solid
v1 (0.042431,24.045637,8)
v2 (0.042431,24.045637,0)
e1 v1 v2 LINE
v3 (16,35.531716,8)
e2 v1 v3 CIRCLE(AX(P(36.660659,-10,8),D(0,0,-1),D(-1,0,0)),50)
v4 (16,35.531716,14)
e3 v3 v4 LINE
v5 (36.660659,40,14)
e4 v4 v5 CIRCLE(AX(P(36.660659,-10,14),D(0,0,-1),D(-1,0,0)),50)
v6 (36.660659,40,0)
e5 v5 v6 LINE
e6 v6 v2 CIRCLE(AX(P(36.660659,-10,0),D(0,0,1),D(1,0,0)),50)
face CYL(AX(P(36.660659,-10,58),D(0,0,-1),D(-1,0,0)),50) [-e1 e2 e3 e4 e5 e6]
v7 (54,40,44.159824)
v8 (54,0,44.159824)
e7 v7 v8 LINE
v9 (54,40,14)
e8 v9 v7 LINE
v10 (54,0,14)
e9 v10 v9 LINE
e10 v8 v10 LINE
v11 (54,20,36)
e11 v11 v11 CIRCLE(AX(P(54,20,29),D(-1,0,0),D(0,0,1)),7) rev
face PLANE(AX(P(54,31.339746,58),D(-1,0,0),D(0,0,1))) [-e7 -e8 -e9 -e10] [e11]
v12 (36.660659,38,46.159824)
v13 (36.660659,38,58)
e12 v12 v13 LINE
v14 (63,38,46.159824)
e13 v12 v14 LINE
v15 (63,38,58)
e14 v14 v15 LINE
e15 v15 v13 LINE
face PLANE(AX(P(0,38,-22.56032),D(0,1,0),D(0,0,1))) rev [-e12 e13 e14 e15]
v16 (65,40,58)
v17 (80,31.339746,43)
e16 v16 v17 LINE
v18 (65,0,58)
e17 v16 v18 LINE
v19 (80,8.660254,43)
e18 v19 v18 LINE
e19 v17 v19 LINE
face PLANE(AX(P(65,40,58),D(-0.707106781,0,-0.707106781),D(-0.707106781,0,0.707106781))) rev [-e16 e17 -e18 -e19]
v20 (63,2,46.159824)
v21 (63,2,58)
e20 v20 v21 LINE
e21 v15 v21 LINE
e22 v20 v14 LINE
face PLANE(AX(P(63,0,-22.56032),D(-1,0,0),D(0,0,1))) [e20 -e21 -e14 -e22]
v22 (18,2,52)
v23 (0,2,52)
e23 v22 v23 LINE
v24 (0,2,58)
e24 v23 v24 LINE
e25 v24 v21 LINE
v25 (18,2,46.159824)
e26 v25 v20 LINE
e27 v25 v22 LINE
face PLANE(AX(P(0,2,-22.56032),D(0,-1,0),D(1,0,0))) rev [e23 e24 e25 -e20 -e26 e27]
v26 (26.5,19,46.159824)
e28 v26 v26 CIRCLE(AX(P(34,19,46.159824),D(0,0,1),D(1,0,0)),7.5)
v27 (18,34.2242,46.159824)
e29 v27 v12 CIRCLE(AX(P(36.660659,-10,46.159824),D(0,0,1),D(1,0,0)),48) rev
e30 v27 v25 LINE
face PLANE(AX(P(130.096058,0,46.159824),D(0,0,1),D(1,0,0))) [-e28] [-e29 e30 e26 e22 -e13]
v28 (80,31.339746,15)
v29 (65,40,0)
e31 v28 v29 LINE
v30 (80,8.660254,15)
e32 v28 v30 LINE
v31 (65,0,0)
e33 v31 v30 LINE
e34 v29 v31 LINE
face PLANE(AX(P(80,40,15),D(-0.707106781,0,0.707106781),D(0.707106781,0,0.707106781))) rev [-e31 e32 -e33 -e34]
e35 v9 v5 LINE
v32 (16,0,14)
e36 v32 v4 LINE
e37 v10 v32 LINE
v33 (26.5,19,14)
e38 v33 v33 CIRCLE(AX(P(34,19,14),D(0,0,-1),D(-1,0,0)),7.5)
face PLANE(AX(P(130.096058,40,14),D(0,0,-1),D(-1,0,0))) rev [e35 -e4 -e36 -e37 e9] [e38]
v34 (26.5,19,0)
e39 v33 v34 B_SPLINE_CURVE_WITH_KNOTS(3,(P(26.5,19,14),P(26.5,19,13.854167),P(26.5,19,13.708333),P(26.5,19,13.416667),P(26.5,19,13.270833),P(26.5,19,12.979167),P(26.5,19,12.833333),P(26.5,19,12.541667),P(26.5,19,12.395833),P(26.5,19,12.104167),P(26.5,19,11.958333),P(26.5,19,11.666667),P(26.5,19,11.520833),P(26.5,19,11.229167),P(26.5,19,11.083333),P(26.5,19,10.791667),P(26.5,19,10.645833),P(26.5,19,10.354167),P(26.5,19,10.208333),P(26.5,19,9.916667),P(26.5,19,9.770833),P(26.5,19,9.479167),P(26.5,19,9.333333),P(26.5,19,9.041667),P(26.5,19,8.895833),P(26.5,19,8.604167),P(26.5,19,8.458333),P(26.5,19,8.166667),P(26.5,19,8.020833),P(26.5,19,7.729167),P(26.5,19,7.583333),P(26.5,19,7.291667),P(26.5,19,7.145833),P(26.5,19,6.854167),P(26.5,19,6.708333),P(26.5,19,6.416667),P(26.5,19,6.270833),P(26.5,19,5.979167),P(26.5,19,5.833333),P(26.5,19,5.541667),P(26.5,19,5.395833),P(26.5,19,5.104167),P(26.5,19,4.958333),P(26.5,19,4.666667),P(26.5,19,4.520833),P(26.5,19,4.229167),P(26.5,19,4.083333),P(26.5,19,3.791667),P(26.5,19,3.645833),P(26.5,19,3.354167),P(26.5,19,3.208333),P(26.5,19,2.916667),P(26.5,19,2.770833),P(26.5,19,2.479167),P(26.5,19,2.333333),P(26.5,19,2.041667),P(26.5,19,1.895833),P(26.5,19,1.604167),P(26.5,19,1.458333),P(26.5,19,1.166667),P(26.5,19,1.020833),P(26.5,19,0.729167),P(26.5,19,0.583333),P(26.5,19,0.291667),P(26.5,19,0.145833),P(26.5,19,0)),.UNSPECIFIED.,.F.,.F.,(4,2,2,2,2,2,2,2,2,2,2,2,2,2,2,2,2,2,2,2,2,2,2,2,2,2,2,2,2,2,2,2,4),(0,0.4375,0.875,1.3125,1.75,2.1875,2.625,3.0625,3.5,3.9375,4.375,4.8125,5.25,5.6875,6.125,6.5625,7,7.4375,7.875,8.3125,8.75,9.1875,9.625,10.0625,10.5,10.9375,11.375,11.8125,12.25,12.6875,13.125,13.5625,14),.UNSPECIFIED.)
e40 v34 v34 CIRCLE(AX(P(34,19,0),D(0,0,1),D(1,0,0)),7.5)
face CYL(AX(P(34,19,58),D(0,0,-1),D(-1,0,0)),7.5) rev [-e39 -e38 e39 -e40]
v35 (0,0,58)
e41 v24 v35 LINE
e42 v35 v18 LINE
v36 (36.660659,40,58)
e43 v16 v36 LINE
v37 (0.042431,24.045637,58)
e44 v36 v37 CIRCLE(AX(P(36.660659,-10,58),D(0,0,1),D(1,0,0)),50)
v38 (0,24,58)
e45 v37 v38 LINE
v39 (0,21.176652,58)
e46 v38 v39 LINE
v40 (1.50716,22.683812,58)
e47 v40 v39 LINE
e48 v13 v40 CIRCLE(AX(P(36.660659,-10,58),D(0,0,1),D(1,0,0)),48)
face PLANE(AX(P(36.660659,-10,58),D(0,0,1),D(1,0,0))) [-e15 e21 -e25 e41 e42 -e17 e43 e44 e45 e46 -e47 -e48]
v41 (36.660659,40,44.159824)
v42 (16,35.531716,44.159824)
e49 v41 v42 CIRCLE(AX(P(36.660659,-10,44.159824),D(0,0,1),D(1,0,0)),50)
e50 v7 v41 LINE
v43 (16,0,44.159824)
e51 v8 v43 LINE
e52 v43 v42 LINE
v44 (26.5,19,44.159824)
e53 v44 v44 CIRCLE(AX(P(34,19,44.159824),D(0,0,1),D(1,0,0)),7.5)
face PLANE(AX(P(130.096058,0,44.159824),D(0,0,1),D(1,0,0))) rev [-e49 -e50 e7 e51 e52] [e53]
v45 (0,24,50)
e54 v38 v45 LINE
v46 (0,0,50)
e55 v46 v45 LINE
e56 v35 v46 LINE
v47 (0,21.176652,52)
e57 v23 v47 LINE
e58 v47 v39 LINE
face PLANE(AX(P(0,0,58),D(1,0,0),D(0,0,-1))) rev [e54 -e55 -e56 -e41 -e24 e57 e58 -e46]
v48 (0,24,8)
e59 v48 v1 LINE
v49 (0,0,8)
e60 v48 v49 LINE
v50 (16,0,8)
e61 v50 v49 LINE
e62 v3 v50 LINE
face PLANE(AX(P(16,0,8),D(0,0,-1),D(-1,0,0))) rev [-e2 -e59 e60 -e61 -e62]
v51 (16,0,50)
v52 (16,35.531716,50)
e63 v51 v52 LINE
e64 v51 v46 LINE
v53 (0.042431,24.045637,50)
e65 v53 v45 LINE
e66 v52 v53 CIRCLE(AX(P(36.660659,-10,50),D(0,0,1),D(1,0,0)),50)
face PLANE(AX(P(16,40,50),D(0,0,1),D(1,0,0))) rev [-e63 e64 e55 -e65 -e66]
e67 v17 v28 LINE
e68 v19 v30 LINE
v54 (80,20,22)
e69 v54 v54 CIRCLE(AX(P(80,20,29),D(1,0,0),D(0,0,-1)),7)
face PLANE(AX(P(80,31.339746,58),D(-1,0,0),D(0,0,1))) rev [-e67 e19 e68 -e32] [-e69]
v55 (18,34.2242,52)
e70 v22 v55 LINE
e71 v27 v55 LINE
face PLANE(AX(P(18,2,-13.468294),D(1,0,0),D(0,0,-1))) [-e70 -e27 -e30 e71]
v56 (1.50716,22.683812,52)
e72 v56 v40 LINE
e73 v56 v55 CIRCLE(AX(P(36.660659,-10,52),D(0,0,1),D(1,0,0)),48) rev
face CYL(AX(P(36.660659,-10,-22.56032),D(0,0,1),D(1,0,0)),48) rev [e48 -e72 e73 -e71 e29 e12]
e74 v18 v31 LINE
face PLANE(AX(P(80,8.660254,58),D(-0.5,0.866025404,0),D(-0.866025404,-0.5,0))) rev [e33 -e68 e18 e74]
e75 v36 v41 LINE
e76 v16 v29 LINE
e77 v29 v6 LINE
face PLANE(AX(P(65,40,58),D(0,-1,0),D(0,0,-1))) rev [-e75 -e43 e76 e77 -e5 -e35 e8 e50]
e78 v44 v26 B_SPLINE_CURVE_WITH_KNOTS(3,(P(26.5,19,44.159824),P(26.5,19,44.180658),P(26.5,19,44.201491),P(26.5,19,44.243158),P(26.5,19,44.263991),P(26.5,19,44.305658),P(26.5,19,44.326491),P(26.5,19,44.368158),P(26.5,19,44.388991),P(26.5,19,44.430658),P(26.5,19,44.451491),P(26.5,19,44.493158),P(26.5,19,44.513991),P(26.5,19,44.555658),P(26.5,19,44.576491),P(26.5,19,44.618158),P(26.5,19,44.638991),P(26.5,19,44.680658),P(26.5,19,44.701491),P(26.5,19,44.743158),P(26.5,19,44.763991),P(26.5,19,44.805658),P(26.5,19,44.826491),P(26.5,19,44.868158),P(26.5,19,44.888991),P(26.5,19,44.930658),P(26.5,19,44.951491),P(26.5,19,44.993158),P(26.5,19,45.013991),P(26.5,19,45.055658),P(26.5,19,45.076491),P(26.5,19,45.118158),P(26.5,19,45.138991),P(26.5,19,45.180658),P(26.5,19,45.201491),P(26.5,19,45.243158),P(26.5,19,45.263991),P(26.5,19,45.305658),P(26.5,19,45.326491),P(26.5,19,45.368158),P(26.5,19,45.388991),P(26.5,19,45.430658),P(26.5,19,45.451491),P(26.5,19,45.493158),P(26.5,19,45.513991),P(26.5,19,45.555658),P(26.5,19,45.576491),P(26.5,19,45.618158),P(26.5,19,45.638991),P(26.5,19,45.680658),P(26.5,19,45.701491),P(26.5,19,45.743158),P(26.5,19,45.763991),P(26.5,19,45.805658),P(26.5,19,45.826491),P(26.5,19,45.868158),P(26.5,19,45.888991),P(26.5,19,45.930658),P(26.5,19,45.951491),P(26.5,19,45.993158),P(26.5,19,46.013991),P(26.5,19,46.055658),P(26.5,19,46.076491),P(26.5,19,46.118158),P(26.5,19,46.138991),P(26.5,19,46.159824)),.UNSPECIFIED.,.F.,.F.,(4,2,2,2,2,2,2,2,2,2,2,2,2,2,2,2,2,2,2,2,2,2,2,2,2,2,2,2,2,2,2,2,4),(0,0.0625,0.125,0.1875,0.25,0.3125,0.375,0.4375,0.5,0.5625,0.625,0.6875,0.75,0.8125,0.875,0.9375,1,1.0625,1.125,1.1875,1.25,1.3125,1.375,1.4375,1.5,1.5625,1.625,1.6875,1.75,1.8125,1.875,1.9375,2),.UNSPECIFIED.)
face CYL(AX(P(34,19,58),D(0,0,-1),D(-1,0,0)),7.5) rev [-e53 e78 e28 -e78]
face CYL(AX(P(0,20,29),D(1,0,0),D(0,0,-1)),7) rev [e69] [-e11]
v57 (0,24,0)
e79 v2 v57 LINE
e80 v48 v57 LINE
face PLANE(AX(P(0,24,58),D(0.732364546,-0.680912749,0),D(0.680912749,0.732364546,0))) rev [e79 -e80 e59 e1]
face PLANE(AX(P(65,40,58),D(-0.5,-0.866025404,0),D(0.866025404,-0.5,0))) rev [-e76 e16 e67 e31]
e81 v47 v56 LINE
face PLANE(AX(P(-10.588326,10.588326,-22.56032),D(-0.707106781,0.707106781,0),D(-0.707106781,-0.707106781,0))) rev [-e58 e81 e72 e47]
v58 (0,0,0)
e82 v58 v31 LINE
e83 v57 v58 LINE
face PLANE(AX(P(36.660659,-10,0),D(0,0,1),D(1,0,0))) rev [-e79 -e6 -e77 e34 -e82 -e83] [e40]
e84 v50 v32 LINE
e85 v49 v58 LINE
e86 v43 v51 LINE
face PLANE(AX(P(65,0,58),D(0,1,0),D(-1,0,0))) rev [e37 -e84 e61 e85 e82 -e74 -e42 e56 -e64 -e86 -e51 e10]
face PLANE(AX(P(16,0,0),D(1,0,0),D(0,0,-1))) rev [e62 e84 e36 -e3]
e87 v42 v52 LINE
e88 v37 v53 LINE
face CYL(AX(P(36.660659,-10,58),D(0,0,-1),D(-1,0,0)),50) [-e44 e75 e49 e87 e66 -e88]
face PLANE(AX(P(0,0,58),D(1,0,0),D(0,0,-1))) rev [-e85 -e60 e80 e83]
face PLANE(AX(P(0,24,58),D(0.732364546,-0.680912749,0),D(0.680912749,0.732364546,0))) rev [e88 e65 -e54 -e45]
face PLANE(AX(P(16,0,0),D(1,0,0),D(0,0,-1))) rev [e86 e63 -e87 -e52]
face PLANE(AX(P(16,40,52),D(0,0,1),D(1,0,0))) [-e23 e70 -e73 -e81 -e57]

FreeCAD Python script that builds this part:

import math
import FreeCAD as App
import Part
import Sketcher
from FreeCAD import Vector
Q = App.Units.Quantity

doc = App.newDocument("Part")
body = doc.addObject("PartDesign::Body", "Body")

# Sketch on XY plane
sketch1 = doc.addObject("Sketcher::SketchObject", "Sketch")
body.addObject(sketch1)
sketch1.AttachmentSupport = (doc.XY_Plane, [""])
sketch1.MapMode = "FlatFace"
sketch1.addGeometry([
    Part.LineSegment(Vector(0, 24, 0), Vector(0, 0, 0)),  # 0
    Part.LineSegment(Vector(0, 0, 0), Vector(65, 0, 0)),  # 1
    Part.LineSegment(Vector(65, 0, 0), Vector(80, 8.66, 0)),  # 2
    Part.LineSegment(Vector(80, 8.66, 0), Vector(80, 31.34, 0)),  # 3
    Part.LineSegment(Vector(80, 31.34, 0), Vector(65, 40, 0)),  # 4
    Part.LineSegment(Vector(65, 40, 0), Vector(36.66, 40, 0)),  # 5
    Part.ArcOfCircle(Part.Circle(Vector(36.66, -10, 0), Vector(0, 0, 1), 50), math.radians(90), math.radians(137)),  # 6
    Part.LineSegment(Vector(0.04, 24.05, 0), Vector(0, 24, 0)),  # 7
    Part.Circle(Vector(34, 19, 0), Vector(0, 0, 1), 7.5),  # 8
], False)
sketch1.addConstraint([
    Sketcher.Constraint("Coincident", 0, 2, 1, 1),
    Sketcher.Constraint("Coincident", 1, 2, 2, 1),
    Sketcher.Constraint("Coincident", 2, 2, 3, 1),
    Sketcher.Constraint("Coincident", 3, 2, 4, 1),
    Sketcher.Constraint("Coincident", 4, 2, 5, 1),
    Sketcher.Constraint("Tangent", 5, 2, 6, 1),
    Sketcher.Constraint("Tangent", 6, 2, 7, 1),
    Sketcher.Constraint("Coincident", 7, 2, 0, 1),
    Sketcher.Constraint("Vertical", 0),
    Sketcher.Constraint("Horizontal", 1),
    Sketcher.Constraint("Vertical", 3),
    Sketcher.Constraint("Horizontal", 5),
    Sketcher.Constraint("Coincident", 0, 2, -1, 1),
    Sketcher.Constraint("Vertical", 1, 2, 4, 2),
    Sketcher.Constraint("Equal", 2, 4),
    Sketcher.Constraint("Diameter", 8, 15.0),
    Sketcher.Constraint("Radius", 6, 50.0),
    Sketcher.Constraint("DistanceX", 1, 1, 1, 2, 65.0),
    Sketcher.Constraint("DistanceY", 0, 2, 0, 1, 24.0),
    Sketcher.Constraint("Angle", 2, Q("30 deg")),
    Sketcher.Constraint("DistanceY", 6, 3, -1, 1, 10.0),
    Sketcher.Constraint("DistanceX", -1, 1, 8, 3, 34.0),
    Sketcher.Constraint("DistanceY", -1, 1, 8, 3, 19.0),
    Sketcher.Constraint("DistanceX", -1, 1, 2, 2, 80.0),
    Sketcher.Constraint("DistanceX", -1, 1, 6, 2, 0.042431),
])
pad1 = doc.addObject("PartDesign::Pad", "Pad")
body.addObject(pad1)
pad1.Profile = sketch1
pad1.Length = 58

# Sketch on XZ plane
sketch2 = doc.addObject("Sketcher::SketchObject", "Sketch001")
body.addObject(sketch2)
sketch2.AttachmentSupport = (doc.XZ_Plane, [""])
sketch2.MapMode = "FlatFace"
sketch2.addGeometry([
    Part.LineSegment(Vector(65, 58, 0), Vector(80, 43, 0)),  # 0
    Part.LineSegment(Vector(80, 43, 0), Vector(80, 58, 0)),  # 1
    Part.LineSegment(Vector(80, 58, 0), Vector(65, 58, 0)),  # 2
    Part.LineSegment(Vector(65, 0, 0), Vector(80, 0, 0)),  # 3
    Part.LineSegment(Vector(80, 0, 0), Vector(80, 15, 0)),  # 4
    Part.LineSegment(Vector(80, 15, 0), Vector(65, 0, 0)),  # 5
], False)
sketch2.addConstraint([
    Sketcher.Constraint("Coincident", 0, 2, 1, 1),
    Sketcher.Constraint("Coincident", 1, 2, 2, 1),
    Sketcher.Constraint("Coincident", 2, 2, 0, 1),
    Sketcher.Constraint("Coincident", 3, 2, 4, 1),
    Sketcher.Constraint("Coincident", 4, 2, 5, 1),
    Sketcher.Constraint("Coincident", 5, 2, 3, 1),
    Sketcher.Constraint("Vertical", 1),
    Sketcher.Constraint("Horizontal", 2),
    Sketcher.Constraint("Horizontal", 3),
    Sketcher.Constraint("Vertical", 4),
    Sketcher.Constraint("PointOnObject", 3, 2, -1),
    Sketcher.Constraint("Perpendicular", 0, 5),
    Sketcher.Constraint("Vertical", 1, 2, 3, 2),
    Sketcher.Constraint("Vertical", 2, 2, 5, 2),
    Sketcher.Constraint("Equal", 3, 1),
    Sketcher.Constraint("DistanceX", 2, 2, 2, 1, 15.0),
    Sketcher.Constraint("DistanceX", -1, 1, 0, 2, 80.0),
    Sketcher.Constraint("DistanceY", -1, 1, 0, 2, 43.0),
])
pocket1 = doc.addObject("PartDesign::Pocket", "Pocket")
body.addObject(pocket1)
pocket1.Profile = sketch2
pocket1.Type = "ThroughAll"

# Sketch on YZ plane
sketch3 = doc.addObject("Sketcher::SketchObject", "Sketch002")
body.addObject(sketch3)
sketch3.AttachmentSupport = (doc.YZ_Plane, [""])
sketch3.MapMode = "FlatFace"
sketch3.AttachmentOffset = App.Placement(Vector(0, 0, 80), App.Rotation())
sketch3.addGeometry(Part.Circle(Vector(20, 29, 0), Vector(0, 0, 1), 7), False)
sketch3.addConstraint([
    Sketcher.Constraint("Diameter", 0, 14.0),
    Sketcher.Constraint("DistanceX", -1, 1, 0, 3, 20.0),
    Sketcher.Constraint("DistanceY", -1, 1, 0, 3, 29.0),
])
pocket2 = doc.addObject("PartDesign::Pocket", "Pocket001")
body.addObject(pocket2)
pocket2.Profile = sketch3
pocket2.Type = "ThroughAll"

# Sketch on YZ plane
sketch4 = doc.addObject("Sketcher::SketchObject", "Sketch003")
body.addObject(sketch4)
sketch4.AttachmentSupport = (doc.YZ_Plane, [""])
sketch4.MapMode = "FlatFace"
sketch4.addGeometry([
    Part.LineSegment(Vector(40, 8, 0), Vector(0, 8, 0)),
    Part.LineSegment(Vector(0, 8, 0), Vector(0, 50, 0)),
    Part.LineSegment(Vector(0, 50, 0), Vector(40, 50, 0)),
    Part.LineSegment(Vector(40, 50, 0), Vector(40, 8, 0)),
], False)
sketch4.addConstraint([
    Sketcher.Constraint("Coincident", 0, 2, 1, 1),
    Sketcher.Constraint("Coincident", 1, 2, 2, 1),
    Sketcher.Constraint("Coincident", 2, 2, 3, 1),
    Sketcher.Constraint("Coincident", 3, 2, 0, 1),
    Sketcher.Constraint("Horizontal", 0),
    Sketcher.Constraint("Vertical", 1),
    Sketcher.Constraint("Horizontal", 2),
    Sketcher.Constraint("Vertical", 3),
    Sketcher.Constraint("PointOnObject", 0, 2, -2),
    Sketcher.Constraint("DistanceX", 0, 2, 0, 1, 40.0),
    Sketcher.Constraint("DistanceY", 1, 1, 1, 2, 42.0),
    Sketcher.Constraint("DistanceY", -1, 1, 0, 2, 8.0),
])
pocket3 = doc.addObject("PartDesign::Pocket", "Pocket002")
body.addObject(pocket3)
pocket3.Profile = sketch4
pocket3.Length = 16
pocket3.Reversed = True

# Sketch on YZ plane
sketch5 = doc.addObject("Sketcher::SketchObject", "Sketch004")
body.addObject(sketch5)
sketch5.AttachmentSupport = (doc.YZ_Plane, [""])
sketch5.MapMode = "FlatFace"
sketch5.AttachmentOffset = App.Placement(Vector(0, 0, 16), App.Rotation())
sketch5.addGeometry([
    Part.LineSegment(Vector(40, 14, 0), Vector(0, 14, 0)),
    Part.LineSegment(Vector(0, 14, 0), Vector(0, 44, 0)),
    Part.LineSegment(Vector(0, 44, 0), Vector(40, 44, 0)),
    Part.LineSegment(Vector(40, 44, 0), Vector(40, 14, 0)),
], False)
sketch5.addConstraint([
    Sketcher.Constraint("Coincident", 0, 2, 1, 1),
    Sketcher.Constraint("Coincident", 1, 2, 2, 1),
    Sketcher.Constraint("Coincident", 2, 2, 3, 1),
    Sketcher.Constraint("Coincident", 3, 2, 0, 1),
    Sketcher.Constraint("Horizontal", 0),
    Sketcher.Constraint("Vertical", 1),
    Sketcher.Constraint("Horizontal", 2),
    Sketcher.Constraint("Vertical", 3),
    Sketcher.Constraint("PointOnObject", 0, 2, -2),
    Sketcher.Constraint("DistanceX", 0, 2, 0, 1, 40.0),
    Sketcher.Constraint("DistanceY", -1, 1, 0, 2, 14.0),
    Sketcher.Constraint("DistanceY", 1, 1, 1, 2, 30.159824),
])
pocket4 = doc.addObject("PartDesign::Pocket", "Pocket003")
body.addObject(pocket4)
pocket4.Profile = sketch5
pocket4.Length = 38
pocket4.Reversed = True

# Sketch on XY plane
sketch6 = doc.addObject("Sketcher::SketchObject", "Sketch005")
body.addObject(sketch6)
sketch6.AttachmentSupport = (doc.XY_Plane, [""])
sketch6.MapMode = "FlatFace"
sketch6.AttachmentOffset = App.Placement(Vector(0, 0, 52), App.Rotation())
sketch6.addGeometry([
    Part.LineSegment(Vector(0, 21.2, 0), Vector(0, 2, 0)),  # 0
    Part.LineSegment(Vector(0, 2, 0), Vector(63, 2, 0)),  # 1
    Part.LineSegment(Vector(63, 2, 0), Vector(63, 38, 0)),  # 2
    Part.LineSegment(Vector(63, 38, 0), Vector(36.7, 38, 0)),  # 3
    Part.ArcOfCircle(Part.Circle(Vector(36.7, -10, 0), Vector(0, 0, 1), 48), math.radians(90), math.radians(137)),  # 4
    Part.LineSegment(Vector(1.5, 22.7, 0), Vector(0, 21.2, 0)),  # 5
    Part.Circle(Vector(34, 19, 0), Vector(0, 0, 1), 7.5),  # 6
], False)
sketch6.addConstraint([
    Sketcher.Constraint("Coincident", 0, 2, 1, 1),
    Sketcher.Constraint("Coincident", 1, 2, 2, 1),
    Sketcher.Constraint("Coincident", 2, 2, 3, 1),
    Sketcher.Constraint("Tangent", 3, 2, 4, 1),
    Sketcher.Constraint("Coincident", 4, 2, 5, 1),
    Sketcher.Constraint("Coincident", 5, 2, 0, 1),
    Sketcher.Constraint("Vertical", 0),
    Sketcher.Constraint("Horizontal", 1),
    Sketcher.Constraint("Vertical", 2),
    Sketcher.Constraint("Horizontal", 3),
    Sketcher.Constraint("PointOnObject", 0, 2, -2),
    Sketcher.Constraint("Diameter", 6, 15.0),
    Sketcher.Constraint("Radius", 4, 48.0),
    Sketcher.Constraint("DistanceX", 1, 1, 1, 2, 63.0),
    Sketcher.Constraint("DistanceY", 2, 1, 2, 2, 36.0),
    Sketcher.Constraint("Angle", 5, Q("-135 deg")),
    Sketcher.Constraint("DistanceY", 4, 3, -1, 1, 10.0),
    Sketcher.Constraint("DistanceX", -1, 1, 6, 3, 34.0),
    Sketcher.Constraint("DistanceY", -1, 1, 6, 3, 19.0),
    Sketcher.Constraint("DistanceX", 3, 2, 3, 1, 26.339341),
    Sketcher.Constraint("DistanceY", 0, 2, 0, 1, 19.176652),
])
pocket5 = doc.addObject("PartDesign::Pocket", "Pocket004")
body.addObject(pocket5)
pocket5.Profile = sketch6
pocket5.Length = 6
pocket5.Reversed = True

# Sketch on XY plane
sketch7 = doc.addObject("Sketcher::SketchObject", "Sketch006")
body.addObject(sketch7)
sketch7.AttachmentSupport = (doc.XY_Plane, [""])
sketch7.MapMode = "FlatFace"
sketch7.AttachmentOffset = App.Placement(Vector(0, 0, 46.159824), App.Rotation())
sketch7.addGeometry([
    Part.LineSegment(Vector(63, 2, 0), Vector(63, 38, 0)),  # 0
    Part.LineSegment(Vector(63, 38, 0), Vector(37, 38, 0)),  # 1
    Part.ArcOfCircle(Part.Circle(Vector(37, -10, 0), Vector(0, 0, 1), 48), math.radians(90), math.radians(113)),  # 2
    Part.LineSegment(Vector(18, 34, 0), Vector(18, 2, 0)),  # 3
    Part.LineSegment(Vector(18, 2, 0), Vector(63, 2, 0)),  # 4
], False)
sketch7.addConstraint([
    Sketcher.Constraint("Coincident", 0, 2, 1, 1),
    Sketcher.Constraint("Tangent", 1, 2, 2, 1),
    Sketcher.Constraint("Coincident", 2, 2, 3, 1),
    Sketcher.Constraint("Coincident", 3, 2, 4, 1),
    Sketcher.Constraint("Coincident", 4, 2, 0, 1),
    Sketcher.Constraint("Vertical", 0),
    Sketcher.Constraint("Horizontal", 1),
    Sketcher.Constraint("Vertical", 3),
    Sketcher.Constraint("Horizontal", 4),
    Sketcher.Constraint("Radius", 2, 48.0),
    Sketcher.Constraint("DistanceX", 4, 1, 4, 2, 45.0),
    Sketcher.Constraint("DistanceY", 0, 1, 0, 2, 36.0),
    Sketcher.Constraint("DistanceY", 2, 3, -1, 1, 10.0),
    Sketcher.Constraint("DistanceX", -1, 1, 0, 2, 63.0),
    Sketcher.Constraint("DistanceY", 3, 2, 3, 1, 32.2242),
])
pocket6 = doc.addObject("PartDesign::Pocket", "Pocket005")
body.addObject(pocket6)
pocket6.Profile = sketch7
pocket6.Length = 5.840176
pocket6.Reversed = True

doc.recompute()
